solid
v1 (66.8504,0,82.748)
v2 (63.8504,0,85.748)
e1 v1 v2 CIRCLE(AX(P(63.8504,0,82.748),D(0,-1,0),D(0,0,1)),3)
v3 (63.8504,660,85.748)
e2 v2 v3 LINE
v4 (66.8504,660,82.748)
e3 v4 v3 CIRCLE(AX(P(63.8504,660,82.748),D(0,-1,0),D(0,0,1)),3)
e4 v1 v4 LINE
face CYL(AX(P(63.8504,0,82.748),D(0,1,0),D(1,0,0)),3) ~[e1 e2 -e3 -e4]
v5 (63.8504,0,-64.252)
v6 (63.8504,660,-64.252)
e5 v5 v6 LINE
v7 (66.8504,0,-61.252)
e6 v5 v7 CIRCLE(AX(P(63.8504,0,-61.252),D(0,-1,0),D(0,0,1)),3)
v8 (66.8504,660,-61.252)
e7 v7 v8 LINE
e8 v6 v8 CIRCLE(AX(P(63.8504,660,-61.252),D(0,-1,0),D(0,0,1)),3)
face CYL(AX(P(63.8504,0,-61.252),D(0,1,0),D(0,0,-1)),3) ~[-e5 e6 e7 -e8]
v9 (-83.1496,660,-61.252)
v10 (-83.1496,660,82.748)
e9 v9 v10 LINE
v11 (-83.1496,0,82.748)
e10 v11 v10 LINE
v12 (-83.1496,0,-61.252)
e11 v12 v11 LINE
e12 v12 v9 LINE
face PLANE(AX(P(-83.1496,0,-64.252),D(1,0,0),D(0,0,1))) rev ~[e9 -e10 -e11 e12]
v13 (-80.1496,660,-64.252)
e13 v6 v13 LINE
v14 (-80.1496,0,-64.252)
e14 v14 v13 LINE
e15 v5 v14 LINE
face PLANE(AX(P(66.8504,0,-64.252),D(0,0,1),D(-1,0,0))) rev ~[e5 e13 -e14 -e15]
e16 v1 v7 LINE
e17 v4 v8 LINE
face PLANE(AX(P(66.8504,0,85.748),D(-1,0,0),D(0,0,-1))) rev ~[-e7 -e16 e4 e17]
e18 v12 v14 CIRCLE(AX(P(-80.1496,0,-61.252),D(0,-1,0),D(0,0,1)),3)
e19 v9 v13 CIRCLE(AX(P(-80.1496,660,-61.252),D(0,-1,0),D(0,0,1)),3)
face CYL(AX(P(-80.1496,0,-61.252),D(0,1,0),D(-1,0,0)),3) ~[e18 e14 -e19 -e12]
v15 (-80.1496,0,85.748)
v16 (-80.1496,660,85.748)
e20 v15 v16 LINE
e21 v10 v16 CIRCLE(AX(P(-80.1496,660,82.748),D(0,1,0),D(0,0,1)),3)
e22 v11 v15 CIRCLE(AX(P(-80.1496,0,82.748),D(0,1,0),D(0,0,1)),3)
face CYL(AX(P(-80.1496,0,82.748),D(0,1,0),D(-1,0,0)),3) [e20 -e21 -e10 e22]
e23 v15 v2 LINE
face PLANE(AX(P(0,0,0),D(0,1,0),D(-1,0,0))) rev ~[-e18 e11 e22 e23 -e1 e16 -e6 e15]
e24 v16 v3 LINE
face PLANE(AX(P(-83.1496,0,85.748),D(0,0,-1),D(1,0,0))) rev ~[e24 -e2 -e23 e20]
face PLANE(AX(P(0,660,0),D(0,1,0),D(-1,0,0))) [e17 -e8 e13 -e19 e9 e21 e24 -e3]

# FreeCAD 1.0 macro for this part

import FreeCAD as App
import Part
import Sketcher
from FreeCAD import Vector
Q = App.Units.Quantity


def edges_at(feature, points):
    """Names of the edges that pass closest to the given points."""
    edges = feature.Shape.Edges
    near = lambda p: min(range(len(edges)), key=lambda i: edges[i].distToShape(Part.Vertex(*p))[0])
    return sorted({f"Edge{near(p) + 1}" for p in points})


def add_polygon(sketch, points):
    """Adds a closed chain of lines whose ends are joined by coincident constraints."""
    first, n = sketch.GeometryCount, len(points)
    for a, b in zip(points, points[1:] + points[:1]):
        sketch.addGeometry(Part.LineSegment(App.Vector(*a, 0), App.Vector(*b, 0)), False)
    for i in range(n):
        sketch.addConstraint(Sketcher.Constraint("Coincident", first + i, 2, first + (i + 1) % n, 1))

doc = App.newDocument("Part")
body = doc.addObject("PartDesign::Body", "Body")

sketch1 = body.newObject("Sketcher::SketchObject", "Sketch")
sketch1.AttachmentSupport = (doc.getObject("XZ_Plane"), [""])
sketch1.MapMode = "FlatFace"
add_polygon(sketch1, [(-83.1496, -64.252), (-83.1496, 85.748), (66.8504, 85.748), (66.8504, -64.252)])
sketch1.addConstraint([
    Sketcher.Constraint("Vertical", 0),
    Sketcher.Constraint("Horizontal", 1),
    Sketcher.Constraint("Vertical", 2),
    Sketcher.Constraint("Horizontal", 3),
    Sketcher.Constraint("Equal", 3, 0),
    Sketcher.Constraint("DistanceX", 1, 1, 1, 2, Q("150 mm")),
    Sketcher.Constraint("DistanceY", -1, 1, 0, 2, Q("85.748 mm")),
    Sketcher.Constraint("DistanceX", 0, 2, -1, 1, Q("83.1496 mm")),
])
pad1 = body.newObject("PartDesign::Pad", "Pad")
pad1.Profile = sketch1
pad1.Length = 660
pad1.Reversed = True
doc.recompute()

fillet = body.newObject("PartDesign::Fillet", "Fillet")
fillet.Base = (pad1, edges_at(pad1, [
    (66.85, 330, 85.748),
    (-83.15, 330, 85.748),
    (66.85, 330, -64.252),
    (-83.15, 330, -64.252),
]))
fillet.Radius = 3

doc.recompute()
